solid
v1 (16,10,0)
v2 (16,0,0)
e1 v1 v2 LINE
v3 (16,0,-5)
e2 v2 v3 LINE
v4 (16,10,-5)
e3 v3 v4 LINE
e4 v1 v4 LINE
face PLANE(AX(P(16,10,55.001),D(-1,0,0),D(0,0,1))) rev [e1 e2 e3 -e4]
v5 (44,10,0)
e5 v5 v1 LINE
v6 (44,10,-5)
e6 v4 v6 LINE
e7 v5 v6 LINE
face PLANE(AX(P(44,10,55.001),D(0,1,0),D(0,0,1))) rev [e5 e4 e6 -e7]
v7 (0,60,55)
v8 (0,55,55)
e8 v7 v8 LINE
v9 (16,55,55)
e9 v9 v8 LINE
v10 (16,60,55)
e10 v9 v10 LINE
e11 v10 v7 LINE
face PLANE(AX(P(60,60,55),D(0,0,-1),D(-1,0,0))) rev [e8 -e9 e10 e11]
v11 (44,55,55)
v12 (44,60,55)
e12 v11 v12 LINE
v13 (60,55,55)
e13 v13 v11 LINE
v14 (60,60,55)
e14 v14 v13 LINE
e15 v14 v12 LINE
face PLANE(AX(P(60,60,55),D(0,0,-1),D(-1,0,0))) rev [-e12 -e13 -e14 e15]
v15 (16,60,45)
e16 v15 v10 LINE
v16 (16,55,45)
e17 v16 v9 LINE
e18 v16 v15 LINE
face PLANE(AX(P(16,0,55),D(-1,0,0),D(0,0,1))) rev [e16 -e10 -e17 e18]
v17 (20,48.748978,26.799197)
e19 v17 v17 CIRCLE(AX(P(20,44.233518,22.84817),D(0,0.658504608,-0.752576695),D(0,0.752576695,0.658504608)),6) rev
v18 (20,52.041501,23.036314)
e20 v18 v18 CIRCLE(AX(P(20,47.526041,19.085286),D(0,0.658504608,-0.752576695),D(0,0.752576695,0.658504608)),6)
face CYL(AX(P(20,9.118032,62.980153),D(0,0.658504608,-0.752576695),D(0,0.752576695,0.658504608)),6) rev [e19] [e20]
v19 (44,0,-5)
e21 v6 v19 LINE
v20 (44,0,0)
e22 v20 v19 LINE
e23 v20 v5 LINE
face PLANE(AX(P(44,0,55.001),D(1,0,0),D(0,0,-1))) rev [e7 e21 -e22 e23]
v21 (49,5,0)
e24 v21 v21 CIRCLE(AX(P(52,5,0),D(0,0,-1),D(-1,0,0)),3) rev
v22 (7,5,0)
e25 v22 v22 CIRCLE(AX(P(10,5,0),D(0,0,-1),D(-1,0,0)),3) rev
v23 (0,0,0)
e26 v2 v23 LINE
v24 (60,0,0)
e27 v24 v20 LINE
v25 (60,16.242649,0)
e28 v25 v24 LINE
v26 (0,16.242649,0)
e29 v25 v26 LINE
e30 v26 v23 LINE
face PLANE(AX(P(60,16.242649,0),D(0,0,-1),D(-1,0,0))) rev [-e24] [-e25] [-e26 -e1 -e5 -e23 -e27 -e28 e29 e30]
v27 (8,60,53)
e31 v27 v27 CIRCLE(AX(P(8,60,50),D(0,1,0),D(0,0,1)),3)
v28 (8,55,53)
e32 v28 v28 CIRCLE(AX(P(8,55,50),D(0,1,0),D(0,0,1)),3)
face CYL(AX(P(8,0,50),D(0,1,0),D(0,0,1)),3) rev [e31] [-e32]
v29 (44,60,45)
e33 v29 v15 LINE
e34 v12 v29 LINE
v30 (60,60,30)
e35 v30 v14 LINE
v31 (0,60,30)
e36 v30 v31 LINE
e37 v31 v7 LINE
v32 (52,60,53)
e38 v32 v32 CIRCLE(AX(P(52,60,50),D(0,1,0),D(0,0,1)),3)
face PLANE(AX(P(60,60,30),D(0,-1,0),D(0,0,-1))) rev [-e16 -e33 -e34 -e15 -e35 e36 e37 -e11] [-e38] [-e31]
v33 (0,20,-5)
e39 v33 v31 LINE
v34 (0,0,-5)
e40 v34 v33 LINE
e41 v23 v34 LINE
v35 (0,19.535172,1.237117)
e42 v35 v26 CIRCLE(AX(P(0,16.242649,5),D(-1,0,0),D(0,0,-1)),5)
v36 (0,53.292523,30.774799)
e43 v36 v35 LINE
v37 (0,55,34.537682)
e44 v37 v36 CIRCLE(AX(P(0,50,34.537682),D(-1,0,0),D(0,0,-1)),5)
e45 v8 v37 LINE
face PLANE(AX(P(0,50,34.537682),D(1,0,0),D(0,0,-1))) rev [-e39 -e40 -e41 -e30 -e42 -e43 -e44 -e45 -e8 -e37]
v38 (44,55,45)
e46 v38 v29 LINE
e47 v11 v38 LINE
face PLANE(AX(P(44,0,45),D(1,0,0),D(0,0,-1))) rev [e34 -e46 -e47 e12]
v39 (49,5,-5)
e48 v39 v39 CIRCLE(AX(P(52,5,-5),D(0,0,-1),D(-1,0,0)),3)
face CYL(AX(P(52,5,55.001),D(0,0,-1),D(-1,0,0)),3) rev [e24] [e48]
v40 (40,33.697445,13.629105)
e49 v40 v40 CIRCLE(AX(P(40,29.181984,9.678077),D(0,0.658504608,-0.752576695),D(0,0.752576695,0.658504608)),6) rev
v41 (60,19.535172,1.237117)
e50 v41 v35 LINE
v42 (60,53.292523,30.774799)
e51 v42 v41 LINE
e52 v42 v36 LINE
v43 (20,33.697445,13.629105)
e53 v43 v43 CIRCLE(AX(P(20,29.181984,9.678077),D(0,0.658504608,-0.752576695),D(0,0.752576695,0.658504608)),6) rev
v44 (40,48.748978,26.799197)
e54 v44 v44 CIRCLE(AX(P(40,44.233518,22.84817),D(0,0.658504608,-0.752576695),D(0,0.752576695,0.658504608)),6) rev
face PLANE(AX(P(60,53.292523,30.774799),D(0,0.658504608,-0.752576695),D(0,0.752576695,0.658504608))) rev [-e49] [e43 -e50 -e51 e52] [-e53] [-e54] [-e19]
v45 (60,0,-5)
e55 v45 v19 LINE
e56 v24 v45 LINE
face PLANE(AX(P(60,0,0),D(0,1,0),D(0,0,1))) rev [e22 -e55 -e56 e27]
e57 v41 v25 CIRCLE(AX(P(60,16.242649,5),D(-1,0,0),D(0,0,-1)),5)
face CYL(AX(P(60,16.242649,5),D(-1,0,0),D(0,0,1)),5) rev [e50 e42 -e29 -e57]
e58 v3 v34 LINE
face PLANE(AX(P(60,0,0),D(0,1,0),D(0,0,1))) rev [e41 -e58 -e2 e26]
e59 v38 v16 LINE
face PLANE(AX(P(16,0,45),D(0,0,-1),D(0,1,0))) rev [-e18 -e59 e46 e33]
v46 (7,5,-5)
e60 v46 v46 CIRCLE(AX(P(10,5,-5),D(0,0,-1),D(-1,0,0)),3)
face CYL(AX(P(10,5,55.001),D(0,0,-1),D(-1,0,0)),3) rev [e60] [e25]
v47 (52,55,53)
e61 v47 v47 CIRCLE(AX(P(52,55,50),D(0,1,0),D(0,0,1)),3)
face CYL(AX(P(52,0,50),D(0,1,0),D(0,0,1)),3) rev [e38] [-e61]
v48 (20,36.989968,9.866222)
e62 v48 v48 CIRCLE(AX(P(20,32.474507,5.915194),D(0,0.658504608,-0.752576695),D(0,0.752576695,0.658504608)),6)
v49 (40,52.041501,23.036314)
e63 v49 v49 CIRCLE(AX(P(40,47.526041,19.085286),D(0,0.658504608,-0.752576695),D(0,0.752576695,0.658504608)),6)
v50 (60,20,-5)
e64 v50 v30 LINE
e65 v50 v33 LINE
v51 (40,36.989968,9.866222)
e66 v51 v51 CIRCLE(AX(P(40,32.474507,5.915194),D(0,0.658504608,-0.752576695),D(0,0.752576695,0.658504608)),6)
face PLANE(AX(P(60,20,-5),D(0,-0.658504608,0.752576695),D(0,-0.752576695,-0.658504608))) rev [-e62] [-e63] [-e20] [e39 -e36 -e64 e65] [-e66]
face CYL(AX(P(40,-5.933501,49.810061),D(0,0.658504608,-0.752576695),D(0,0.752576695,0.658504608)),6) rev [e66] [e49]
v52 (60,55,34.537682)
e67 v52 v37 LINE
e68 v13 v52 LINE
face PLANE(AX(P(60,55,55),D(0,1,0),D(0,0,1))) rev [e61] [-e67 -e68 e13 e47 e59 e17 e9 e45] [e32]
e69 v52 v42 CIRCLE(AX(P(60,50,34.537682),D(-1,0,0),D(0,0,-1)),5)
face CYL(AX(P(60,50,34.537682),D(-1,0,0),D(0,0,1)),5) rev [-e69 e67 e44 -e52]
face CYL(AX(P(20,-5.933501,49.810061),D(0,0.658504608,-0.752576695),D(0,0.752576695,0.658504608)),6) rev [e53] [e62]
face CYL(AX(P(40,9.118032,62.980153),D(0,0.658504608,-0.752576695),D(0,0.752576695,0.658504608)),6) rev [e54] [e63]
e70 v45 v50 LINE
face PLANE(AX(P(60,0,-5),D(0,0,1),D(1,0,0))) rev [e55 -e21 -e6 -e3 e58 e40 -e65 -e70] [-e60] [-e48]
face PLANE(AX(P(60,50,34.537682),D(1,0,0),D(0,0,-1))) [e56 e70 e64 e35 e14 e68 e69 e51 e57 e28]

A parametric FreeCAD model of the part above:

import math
import FreeCAD as App
import Part
import Sketcher

V = App.Vector
Q = App.Units.Quantity

doc = App.newDocument("Part")
body = doc.addObject("PartDesign::Body", "Body")

sketch1 = body.newObject("Sketcher::SketchObject", "Sketch")
sketch1.AttachmentSupport = (doc.getObject("YZ_Plane"), [""])
sketch1.MapMode = "FlatFace"
sketch1.addGeometry([
    Part.LineSegment(V(60, 55, 0), V(55, 55, 0)),
    Part.LineSegment(V(55, 55, 0), V(55, 34.5, 0)),
    Part.ArcOfCircle(Part.Circle(V(50, 34.5, 0), V(0, 0, 1), 5), math.radians(-49), math.radians(0)),
    Part.LineSegment(V(53.3, 30.8, 0), V(19.5, 1.2, 0)),
    Part.ArcOfCircle(Part.Circle(V(16.2, 5, 0), V(0, 0, 1), 5), math.radians(-90), math.radians(-49)),
    Part.LineSegment(V(16.2, 0, 0), V(0, 0, 0)),
    Part.LineSegment(V(0, 0, 0), V(0, -5, 0)),
    Part.LineSegment(V(0, -5, 0), V(20, -5, 0)),
    Part.LineSegment(V(20, -5, 0), V(60, 30, 0)),
    Part.LineSegment(V(60, 30, 0), V(60, 55, 0)),
], False)
sketch1.addConstraint([
    Sketcher.Constraint("Coincident", 0, 2, 1, 1),
    Sketcher.Constraint("Tangent", 1, 2, 2, 2),
    Sketcher.Constraint("Tangent", 2, 1, 3, 1),
    Sketcher.Constraint("Tangent", 3, 2, 4, 2),
    Sketcher.Constraint("Tangent", 4, 1, 5, 1),
    Sketcher.Constraint("Coincident", 5, 2, 6, 1),
    Sketcher.Constraint("Coincident", 6, 2, 7, 1),
    Sketcher.Constraint("Coincident", 7, 2, 8, 1),
    Sketcher.Constraint("Coincident", 8, 2, 9, 1),
    Sketcher.Constraint("Coincident", 9, 2, 0, 1),
    Sketcher.Constraint("Horizontal", 0),
    Sketcher.Constraint("Vertical", 1),
    Sketcher.Constraint("Horizontal", 5),
    Sketcher.Constraint("Vertical", 6),
    Sketcher.Constraint("Horizontal", 7),
    Sketcher.Constraint("Vertical", 9),
    Sketcher.Constraint("Coincident", 5, 2, -1, 1),
    Sketcher.Constraint("Equal", 2, 4),
    Sketcher.Constraint("Parallel", 3, 8),
    Sketcher.Constraint("Equal", 0, 6),
    Sketcher.Constraint("Radius", 2, Q("5 mm")),
    Sketcher.Constraint("DistanceX", 0, 2, 0, 1, Q("5 mm")),
    Sketcher.Constraint("DistanceX", 7, 1, 7, 2, Q("20 mm")),
    Sketcher.Constraint("DistanceY", 9, 1, 9, 2, Q("25 mm")),
    Sketcher.Constraint("DistanceX", -1, 1, 2, 3, Q("50 mm")),
    Sketcher.Constraint("DistanceY", -1, 1, 0, 2, Q("55 mm")),
    Sketcher.Constraint("DistanceX", 5, 2, 5, 1, Q("16.242649 mm")),
])
pad1 = body.newObject("PartDesign::Pad", "Pad")
pad1.Profile = sketch1
pad1.Length = 60

sketch2 = body.newObject("Sketcher::SketchObject", "Sketch001")
sketch2.Placement = App.Placement(V(0, 11.150442, -12.743363), App.Rotation(V(-1, 0, 0), V(0, 0.752576695, 0.658504608), V(0, 0.658504608, -0.752576695), "ZXY"))
sketch2.addGeometry(Part.Circle(V(-40, 48, 0), V(0, 0, 1), 6), False)
sketch2.addConstraint([
    Sketcher.Constraint("Diameter", 0, Q("12 mm")),
    Sketcher.Constraint("DistanceX", 0, 3, -1, 1, Q("40 mm")),
    Sketcher.Constraint("DistanceY", -1, 1, 0, 3, Q("48.33474 mm")),
])
pocket1 = body.newObject("PartDesign::Pocket", "Pocket")
pocket1.Profile = sketch2
pocket1.Type = "UpToFirst"

sketch3 = body.newObject("Sketcher::SketchObject", "Sketch002")
sketch3.Placement = App.Placement(V(0, 11.150442, -12.743363), App.Rotation(V(-1, 0, 0), V(0, 0.752576695, 0.658504608), V(0, 0.658504608, -0.752576695), "ZXY"))
sketch3.addGeometry(Part.Circle(V(-40, 28, 0), V(0, 0, 1), 6), False)
sketch3.addConstraint([
    Sketcher.Constraint("Diameter", 0, Q("12 mm")),
    Sketcher.Constraint("DistanceX", 0, 3, -1, 1, Q("40 mm")),
    Sketcher.Constraint("DistanceY", -1, 1, 0, 3, Q("28.33474 mm")),
])
pocket2 = body.newObject("PartDesign::Pocket", "Pocket001")
pocket2.Profile = sketch3
pocket2.Type = "UpToFirst"

sketch4 = body.newObject("Sketcher::SketchObject", "Sketch003")
sketch4.Placement = App.Placement(V(0, 11.150442, -12.743363), App.Rotation(V(-1, 0, 0), V(0, 0.752576695, 0.658504608), V(0, 0.658504608, -0.752576695), "ZXY"))
sketch4.addGeometry(Part.Circle(V(-20, 48, 0), V(0, 0, 1), 6), False)
sketch4.addConstraint([
    Sketcher.Constraint("Diameter", 0, Q("12 mm")),
    Sketcher.Constraint("DistanceX", 0, 3, -1, 1, Q("20 mm")),
    Sketcher.Constraint("DistanceY", -1, 1, 0, 3, Q("48.33474 mm")),
])
pocket3 = body.newObject("PartDesign::Pocket", "Pocket002")
pocket3.Profile = sketch4
pocket3.Type = "UpToFirst"

sketch5 = body.newObject("Sketcher::SketchObject", "Sketch004")
sketch5.Placement = App.Placement(V(0, 11.150442, -12.743363), App.Rotation(V(-1, 0, 0), V(0, 0.752576695, 0.658504608), V(0, 0.658504608, -0.752576695), "ZXY"))
sketch5.addGeometry(Part.Circle(V(-20, 28, 0), V(0, 0, 1), 6), False)
sketch5.addConstraint([
    Sketcher.Constraint("Diameter", 0, Q("12 mm")),
    Sketcher.Constraint("DistanceX", 0, 3, -1, 1, Q("20 mm")),
    Sketcher.Constraint("DistanceY", -1, 1, 0, 3, Q("28.33474 mm")),
])
pocket4 = body.newObject("PartDesign::Pocket", "Pocket003")
pocket4.Profile = sketch5
pocket4.Type = "UpToFirst"

sketch6 = body.newObject("Sketcher::SketchObject", "Sketch005")
sketch6.AttachmentSupport = (doc.getObject("XY_Plane"), [""])
sketch6.MapMode = "FlatFace"
sketch6.AttachmentOffset = App.Placement(V(0, 0, -5), App.Rotation())
sketch6.addGeometry(Part.Circle(V(52, 5, 0), V(0, 0, 1), 3), False)
sketch6.addConstraint([
    Sketcher.Constraint("Diameter", 0, Q("6 mm")),
    Sketcher.Constraint("DistanceX", -1, 1, 0, 3, Q("52 mm")),
    Sketcher.Constraint("DistanceY", -1, 1, 0, 3, Q("5 mm")),
])
pocket5 = body.newObject("PartDesign::Pocket", "Pocket004")
pocket5.Profile = sketch6
pocket5.Type = "UpToFirst"
pocket5.Reversed = True

sketch7 = body.newObject("Sketcher::SketchObject", "Sketch006")
sketch7.AttachmentSupport = (doc.getObject("XY_Plane"), [""])
sketch7.MapMode = "FlatFace"
sketch7.AttachmentOffset = App.Placement(V(0, 0, -5), App.Rotation())
sketch7.addGeometry(Part.Circle(V(10, 5, 0), V(0, 0, 1), 3), False)
sketch7.addConstraint([
    Sketcher.Constraint("Diameter", 0, Q("6 mm")),
    Sketcher.Constraint("DistanceX", -1, 1, 0, 3, Q("10 mm")),
    Sketcher.Constraint("DistanceY", -1, 1, 0, 3, Q("5 mm")),
])
pocket6 = body.newObject("PartDesign::Pocket", "Pocket005")
pocket6.Profile = sketch7
pocket6.Type = "UpToFirst"
pocket6.Reversed = True

sketch8 = body.newObject("Sketcher::SketchObject", "Sketch007")
sketch8.AttachmentSupport = (doc.getObject("XY_Plane"), [""])
sketch8.MapMode = "FlatFace"
sketch8.AttachmentOffset = App.Placement(V(0, 0, -5), App.Rotation())
sketch8.addGeometry([
    Part.LineSegment(V(44, 10, 0), V(44, 0, 0)),
    Part.LineSegment(V(44, 0, 0), V(16, 0, 0)),
    Part.LineSegment(V(16, 0, 0), V(16, 10, 0)),
    Part.LineSegment(V(16, 10, 0), V(44, 10, 0)),
], False)
sketch8.addConstraint([
    Sketcher.Constraint("Coincident", 0, 2, 1, 1),
    Sketcher.Constraint("Coincident", 1, 2, 2, 1),
    Sketcher.Constraint("Coincident", 2, 2, 3, 1),
    Sketcher.Constraint("Coincident", 3, 2, 0, 1),
    Sketcher.Constraint("Vertical", 0),
    Sketcher.Constraint("Horizontal", 1),
    Sketcher.Constraint("Vertical", 2),
    Sketcher.Constraint("Horizontal", 3),
    Sketcher.Constraint("PointOnObject", 0, 2, -1),
    Sketcher.Constraint("DistanceX", 1, 2, 1, 1, Q("28 mm")),
    Sketcher.Constraint("DistanceY", 0, 2, 0, 1, Q("10 mm")),
    Sketcher.Constraint("DistanceX", -1, 1, 0, 2, Q("44 mm")),
])
pocket7 = body.newObject("PartDesign::Pocket", "Pocket006")
pocket7.Profile = sketch8
pocket7.Type = "UpToFirst"
pocket7.Reversed = True

sketch9 = body.newObject("Sketcher::SketchObject", "Sketch008")
sketch9.AttachmentSupport = (doc.getObject("XZ_Plane"), [""])
sketch9.MapMode = "FlatFace"
sketch9.AttachmentOffset = App.Placement(V(0, 0, -60), App.Rotation())
sketch9.addGeometry([
    Part.Circle(V(8, 50, 0), V(0, 0, 1), 3),
    Part.Circle(V(52, 50, 0), V(0, 0, 1), 3),
    Part.LineSegment(V(16, 45, 0), V(16, 55, 0)),
    Part.LineSegment(V(16, 55, 0), V(44, 55, 0)),
    Part.LineSegment(V(44, 55, 0), V(44, 45, 0)),
    Part.LineSegment(V(44, 45, 0), V(16, 45, 0)),
], False)
sketch9.addConstraint([
    Sketcher.Constraint("Coincident", 2, 2, 3, 1),
    Sketcher.Constraint("Coincident", 3, 2, 4, 1),
    Sketcher.Constraint("Coincident", 4, 2, 5, 1),
    Sketcher.Constraint("Coincident", 5, 2, 2, 1),
    Sketcher.Constraint("Vertical", 2),
    Sketcher.Constraint("Horizontal", 3),
    Sketcher.Constraint("Vertical", 4),
    Sketcher.Constraint("Horizontal", 5),
    Sketcher.Constraint("Equal", 0, 1),
    Sketcher.Constraint("Horizontal", 0, 3, 1, 3),
    Sketcher.Constraint("Diameter", 0, Q("6 mm")),
    Sketcher.Constraint("DistanceX", 3, 1, 3, 2, Q("28 mm")),
    Sketcher.Constraint("DistanceY", 2, 1, 2, 2, Q("10 mm")),
    Sketcher.Constraint("DistanceX", -1, 1, 0, 3, Q("8 mm")),
    Sketcher.Constraint("DistanceY", -1, 1, 0, 3, Q("50 mm")),
    Sketcher.Constraint("DistanceX", -1, 1, 1, 3, Q("52 mm")),
    Sketcher.Constraint("DistanceX", -1, 1, 2, 2, Q("16 mm")),
    Sketcher.Constraint("DistanceY", -1, 1, 2, 2, Q("55 mm")),
])
pocket8 = body.newObject("PartDesign::Pocket", "Pocket007")
pocket8.Profile = sketch9
pocket8.Length = 60
pocket8.Reversed = True

doc.recompute()
